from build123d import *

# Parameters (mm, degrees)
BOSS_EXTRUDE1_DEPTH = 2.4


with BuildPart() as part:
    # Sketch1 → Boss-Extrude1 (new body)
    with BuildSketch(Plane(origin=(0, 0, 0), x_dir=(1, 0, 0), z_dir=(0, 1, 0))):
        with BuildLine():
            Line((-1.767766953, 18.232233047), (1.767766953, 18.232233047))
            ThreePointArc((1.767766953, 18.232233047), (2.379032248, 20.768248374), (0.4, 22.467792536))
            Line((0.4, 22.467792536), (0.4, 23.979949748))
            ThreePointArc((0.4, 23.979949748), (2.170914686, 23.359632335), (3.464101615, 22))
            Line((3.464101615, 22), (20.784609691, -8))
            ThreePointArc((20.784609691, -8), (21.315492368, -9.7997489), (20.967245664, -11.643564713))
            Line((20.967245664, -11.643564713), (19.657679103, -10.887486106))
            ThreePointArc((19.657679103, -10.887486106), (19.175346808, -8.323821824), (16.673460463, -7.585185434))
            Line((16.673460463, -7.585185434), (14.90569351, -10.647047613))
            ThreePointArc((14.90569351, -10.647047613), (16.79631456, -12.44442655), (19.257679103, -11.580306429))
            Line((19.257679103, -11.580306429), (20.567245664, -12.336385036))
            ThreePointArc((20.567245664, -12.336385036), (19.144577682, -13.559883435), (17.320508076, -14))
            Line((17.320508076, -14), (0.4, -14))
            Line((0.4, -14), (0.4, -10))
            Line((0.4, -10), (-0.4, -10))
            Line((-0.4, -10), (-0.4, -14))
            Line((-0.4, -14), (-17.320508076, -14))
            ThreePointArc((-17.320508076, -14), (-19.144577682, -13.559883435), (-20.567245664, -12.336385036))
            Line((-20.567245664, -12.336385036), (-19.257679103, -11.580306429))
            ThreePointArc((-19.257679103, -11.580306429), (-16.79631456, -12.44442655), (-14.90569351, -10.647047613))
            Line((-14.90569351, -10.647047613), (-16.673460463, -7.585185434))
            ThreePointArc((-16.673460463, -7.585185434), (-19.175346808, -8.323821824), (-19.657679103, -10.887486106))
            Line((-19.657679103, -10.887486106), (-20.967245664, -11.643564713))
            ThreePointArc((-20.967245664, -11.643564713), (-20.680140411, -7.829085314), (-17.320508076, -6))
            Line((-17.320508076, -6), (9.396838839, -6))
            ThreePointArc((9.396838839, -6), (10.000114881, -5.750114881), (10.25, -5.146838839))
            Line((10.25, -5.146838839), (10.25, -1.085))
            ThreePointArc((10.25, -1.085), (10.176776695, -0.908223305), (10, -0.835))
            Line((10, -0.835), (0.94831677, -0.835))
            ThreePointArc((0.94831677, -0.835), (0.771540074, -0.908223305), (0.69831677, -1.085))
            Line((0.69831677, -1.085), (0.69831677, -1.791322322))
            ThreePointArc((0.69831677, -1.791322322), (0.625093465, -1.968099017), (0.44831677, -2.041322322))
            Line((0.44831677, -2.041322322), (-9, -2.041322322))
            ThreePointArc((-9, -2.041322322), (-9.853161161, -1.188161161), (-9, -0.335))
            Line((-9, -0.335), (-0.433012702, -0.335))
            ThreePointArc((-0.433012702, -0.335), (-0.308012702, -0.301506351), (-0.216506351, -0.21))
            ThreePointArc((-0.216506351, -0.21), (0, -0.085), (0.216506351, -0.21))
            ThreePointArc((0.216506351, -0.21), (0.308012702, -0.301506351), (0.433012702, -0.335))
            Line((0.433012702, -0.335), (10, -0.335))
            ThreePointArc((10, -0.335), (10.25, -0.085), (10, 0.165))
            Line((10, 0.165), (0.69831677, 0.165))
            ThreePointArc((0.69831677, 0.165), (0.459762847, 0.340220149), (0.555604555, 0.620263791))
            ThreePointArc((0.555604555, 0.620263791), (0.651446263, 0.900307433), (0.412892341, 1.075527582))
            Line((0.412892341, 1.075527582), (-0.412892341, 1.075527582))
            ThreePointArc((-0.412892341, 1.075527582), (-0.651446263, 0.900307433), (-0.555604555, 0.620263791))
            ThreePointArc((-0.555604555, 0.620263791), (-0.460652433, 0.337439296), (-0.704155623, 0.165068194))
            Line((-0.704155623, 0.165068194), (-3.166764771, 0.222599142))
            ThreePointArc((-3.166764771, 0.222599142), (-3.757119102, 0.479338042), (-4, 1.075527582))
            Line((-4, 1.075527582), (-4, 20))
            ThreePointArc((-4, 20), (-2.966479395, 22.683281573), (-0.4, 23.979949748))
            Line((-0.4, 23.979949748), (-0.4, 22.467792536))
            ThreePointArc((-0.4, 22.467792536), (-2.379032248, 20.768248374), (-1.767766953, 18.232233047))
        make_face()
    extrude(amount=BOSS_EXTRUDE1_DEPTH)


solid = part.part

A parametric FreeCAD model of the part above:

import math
import FreeCAD as App
import Part
import Sketcher
Q = App.Units.Quantity

doc = App.newDocument("Part")
body = doc.addObject("PartDesign::Body", "Body")

sketch1 = body.newObject("Sketcher::SketchObject", "Sketch")
sketch1.AttachmentSupport = (doc.getObject("XZ_Plane"), [""])
sketch1.MapMode = "FlatFace"
sketch1.addGeometry(Part.LineSegment(App.Vector(1.767767, -18.232233, 0), App.Vector(-1.767767, -18.232233, 0)), False)
sketch1.addGeometry(Part.ArcOfCircle(Part.Circle(App.Vector(0, -20, 0), App.Vector(0, 0, 1), 2.5), math.radians(135), math.radians(260.793104)), False)
sketch1.addGeometry(Part.LineSegment(App.Vector(-0.4, -22.467793, 0), App.Vector(-0.4, -23.97995, 0)), False)
sketch1.addGeometry(Part.ArcOfCircle(Part.Circle(App.Vector(0, -20, 0), App.Vector(0, 0, 1), 4), math.radians(180), math.radians(264.26083)), False)
sketch1.addGeometry(Part.LineSegment(App.Vector(-4, -20, 0), App.Vector(-4, -1.075528, 0)), False)
sketch1.addGeometry(Part.ArcOfCircle(Part.Circle(App.Vector(-3.146839, -1.075528, 0), App.Vector(0, 0, 1), 0.853161), math.radians(91.338288), math.radians(180)), False)
sketch1.addGeometry(Part.LineSegment(App.Vector(-3.166765, -0.222599, 0), App.Vector(-0.704156, -0.165068, 0)), False)
sketch1.addGeometry(Part.ArcOfCircle(Part.Circle(App.Vector(-0.698317, -0.415, 0), App.Vector(0, 0, 1), 0.25), math.radians(-55.190559), math.radians(91.338288)), False)
sketch1.addGeometry(Part.ArcOfCircle(Part.Circle(App.Vector(-0.412892, -0.825528, 0), App.Vector(0, 0, 1), 0.25), math.radians(124.80944), math.radians(270)), False)
sketch1.addGeometry(Part.LineSegment(App.Vector(-0.412892, -1.075528, 0), App.Vector(0.412892, -1.075528, 0)), False)
sketch1.addGeometry(Part.ArcOfCircle(Part.Circle(App.Vector(0.412892, -0.825528, 0), App.Vector(0, 0, 1), 0.25), math.radians(-90), math.radians(55.19056)), False)
sketch1.addGeometry(Part.ArcOfCircle(Part.Circle(App.Vector(0.698317, -0.415, 0), App.Vector(0, 0, 1), 0.25), math.radians(90), math.radians(235.19056)), False)
sketch1.addGeometry(Part.LineSegment(App.Vector(0.698317, -0.165, 0), App.Vector(10, -0.165, 0)), False)
sketch1.addGeometry(Part.ArcOfCircle(Part.Circle(App.Vector(10, 0.085, 0), App.Vector(0, 0, 1), 0.25), math.radians(-90), math.radians(90)), False)
sketch1.addGeometry(Part.LineSegment(App.Vector(10, 0.335, 0), App.Vector(0.433013, 0.335, 0)), False)
sketch1.addGeometry(Part.ArcOfCircle(Part.Circle(App.Vector(0.433013, 0.085, 0), App.Vector(0, 0, 1), 0.25), math.radians(90), math.radians(150)), False)
sketch1.addGeometry(Part.ArcOfCircle(Part.Circle(App.Vector(0, 0.335, 0), App.Vector(0, 0, 1), 0.25), math.radians(-150), math.radians(-30)), False)
sketch1.addGeometry(Part.ArcOfCircle(Part.Circle(App.Vector(-0.433013, 0.085, 0), App.Vector(0, 0, 1), 0.25), math.radians(30), math.radians(90)), False)
sketch1.addGeometry(Part.LineSegment(App.Vector(-0.433013, 0.335, 0), App.Vector(-9, 0.335, 0)), False)
sketch1.addGeometry(Part.ArcOfCircle(Part.Circle(App.Vector(-9, 1.188161, 0), App.Vector(0, 0, 1), 0.853161), math.radians(90), math.radians(270)), False)
sketch1.addGeometry(Part.LineSegment(App.Vector(-9, 2.041322, 0), App.Vector(0.448317, 2.041322, 0)), False)
sketch1.addGeometry(Part.ArcOfCircle(Part.Circle(App.Vector(0.448317, 1.791322, 0), App.Vector(0, 0, 1), 0.25), math.radians(0), math.radians(90)), False)
sketch1.addGeometry(Part.LineSegment(App.Vector(0.698317, 1.791322, 0), App.Vector(0.698317, 1.085, 0)), False)
sketch1.addGeometry(Part.ArcOfCircle(Part.Circle(App.Vector(0.948317, 1.085, 0), App.Vector(0, 0, 1), 0.25), math.radians(180), math.radians(270)), False)
sketch1.addGeometry(Part.LineSegment(App.Vector(0.948317, 0.835, 0), App.Vector(10, 0.835, 0)), False)
sketch1.addGeometry(Part.ArcOfCircle(Part.Circle(App.Vector(10, 1.085, 0), App.Vector(0, 0, 1), 0.25), math.radians(-90), math.radians(0)), False)
sketch1.addGeometry(Part.LineSegment(App.Vector(10.25, 1.085, 0), App.Vector(10.25, 5.146839, 0)), False)
sketch1.addGeometry(Part.ArcOfCircle(Part.Circle(App.Vector(9.396839, 5.146839, 0), App.Vector(0, 0, 1), 0.853161), math.radians(0), math.radians(90)), False)
sketch1.addGeometry(Part.LineSegment(App.Vector(9.396839, 6, 0), App.Vector(-17.320508, 6, 0)), False)
sketch1.addGeometry(Part.ArcOfCircle(Part.Circle(App.Vector(-17.320508, 10, 0), App.Vector(0, 0, 1), 4), math.radians(155.73917), math.radians(270)), False)
sketch1.addGeometry(Part.LineSegment(App.Vector(-20.967246, 11.643565, 0), App.Vector(-19.657679, 10.887486, 0)), False)
sketch1.addGeometry(Part.ArcOfCircle(Part.Circle(App.Vector(-17.320508, 10, 0), App.Vector(0, 0, 1), 2.5), math.radians(159.206896), math.radians(285)), False)
sketch1.addGeometry(Part.LineSegment(App.Vector(-16.67346, 7.585185, 0), App.Vector(-14.905694, 10.647048, 0)), False)
sketch1.addGeometry(Part.ArcOfCircle(Part.Circle(App.Vector(-17.320508, 10, 0), App.Vector(0, 0, 1), 2.5), math.radians(15), math.radians(140.793104)), False)
sketch1.addGeometry(Part.LineSegment(App.Vector(-19.257679, 11.580306, 0), App.Vector(-20.567246, 12.336385, 0)), False)
sketch1.addGeometry(Part.ArcOfCircle(Part.Circle(App.Vector(-17.320508, 10, 0), App.Vector(0, 0, 1), 4), math.radians(90), math.radians(144.260829)), False)
sketch1.addGeometry(Part.LineSegment(App.Vector(-17.320508, 14, 0), App.Vector(-0.4, 14, 0)), False)
sketch1.addGeometry(Part.LineSegment(App.Vector(-0.4, 14, 0), App.Vector(-0.4, 10, 0)), False)
sketch1.addGeometry(Part.LineSegment(App.Vector(-0.4, 10, 0), App.Vector(0.4, 10, 0)), False)
sketch1.addGeometry(Part.LineSegment(App.Vector(0.4, 10, 0), App.Vector(0.4, 14, 0)), False)
sketch1.addGeometry(Part.LineSegment(App.Vector(0.4, 14, 0), App.Vector(17.320508, 14, 0)), False)
sketch1.addGeometry(Part.ArcOfCircle(Part.Circle(App.Vector(17.320508, 10, 0), App.Vector(0, 0, 1), 4), math.radians(35.739171), math.radians(90)), False)
sketch1.addGeometry(Part.LineSegment(App.Vector(20.567246, 12.336385, 0), App.Vector(19.257679, 11.580306, 0)), False)
sketch1.addGeometry(Part.ArcOfCircle(Part.Circle(App.Vector(17.320508, 10, 0), App.Vector(0, 0, 1), 2.5), math.radians(39.206896), math.radians(165)), False)
sketch1.addGeometry(Part.LineSegment(App.Vector(14.905694, 10.647048, 0), App.Vector(16.67346, 7.585185, 0)), False)
sketch1.addGeometry(Part.ArcOfCircle(Part.Circle(App.Vector(17.320508, 10, 0), App.Vector(0, 0, 1), 2.5), math.radians(-105), math.radians(20.793104)), False)
sketch1.addGeometry(Part.LineSegment(App.Vector(19.657679, 10.887486, 0), App.Vector(20.967246, 11.643565, 0)), False)
sketch1.addGeometry(Part.ArcOfCircle(Part.Circle(App.Vector(17.320508, 10, 0), App.Vector(0, 0, 1), 4), math.radians(-30), math.radians(24.260829)), False)
sketch1.addGeometry(Part.LineSegment(App.Vector(20.78461, 8, 0), App.Vector(3.464102, -22, 0)), False)
sketch1.addGeometry(Part.ArcOfCircle(Part.Circle(App.Vector(0, -20, 0), App.Vector(0, 0, 1), 4), math.radians(-84.26083), math.radians(-30)), False)
sketch1.addGeometry(Part.LineSegment(App.Vector(0.4, -23.97995, 0), App.Vector(0.4, -22.467793, 0)), False)
sketch1.addGeometry(Part.ArcOfCircle(Part.Circle(App.Vector(0, -20, 0), App.Vector(0, 0, 1), 2.5), math.radians(-80.793104), math.radians(45)), False)
sketch1.addConstraint(Sketcher.Constraint("Coincident", 0, 2, 1, 1))
sketch1.addConstraint(Sketcher.Constraint("Coincident", 1, 2, 2, 1))
sketch1.addConstraint(Sketcher.Constraint("Coincident", 2, 2, 3, 2))
sketch1.addConstraint(Sketcher.Constraint("Tangent", 3, 1, 4, 1))
sketch1.addConstraint(Sketcher.Constraint("Tangent", 4, 2, 5, 2))
sketch1.addConstraint(Sketcher.Constraint("Tangent", 5, 1, 6, 1))
sketch1.addConstraint(Sketcher.Constraint("Tangent", 6, 2, 7, 2))
sketch1.addConstraint(Sketcher.Constraint("Tangent", 7, 1, 8, 1))
sketch1.addConstraint(Sketcher.Constraint("Tangent", 8, 2, 9, 1))
sketch1.addConstraint(Sketcher.Constraint("Tangent", 9, 2, 10, 1))
sketch1.addConstraint(Sketcher.Constraint("Tangent", 10, 2, 11, 2))
sketch1.addConstraint(Sketcher.Constraint("Tangent", 11, 1, 12, 1))
sketch1.addConstraint(Sketcher.Constraint("Tangent", 12, 2, 13, 1))
sketch1.addConstraint(Sketcher.Constraint("Tangent", 13, 2, 14, 1))
sketch1.addConstraint(Sketcher.Constraint("Tangent", 14, 2, 15, 1))
sketch1.addConstraint(Sketcher.Constraint("Tangent", 15, 2, 16, 2))
sketch1.addConstraint(Sketcher.Constraint("Tangent", 16, 1, 17, 1))
sketch1.addConstraint(Sketcher.Constraint("Tangent", 17, 2, 18, 1))
sketch1.addConstraint(Sketcher.Constraint("Tangent", 18, 2, 19, 2))
sketch1.addConstraint(Sketcher.Constraint("Tangent", 19, 1, 20, 1))
sketch1.addConstraint(Sketcher.Constraint("Tangent", 20, 2, 21, 2))
sketch1.addConstraint(Sketcher.Constraint("Tangent", 21, 1, 22, 1))
sketch1.addConstraint(Sketcher.Constraint("Tangent", 22, 2, 23, 1))
sketch1.addConstraint(Sketcher.Constraint("Tangent", 23, 2, 24, 1))
sketch1.addConstraint(Sketcher.Constraint("Tangent", 24, 2, 25, 1))
sketch1.addConstraint(Sketcher.Constraint("Tangent", 25, 2, 26, 1))
sketch1.addConstraint(Sketcher.Constraint("Tangent", 26, 2, 27, 1))
sketch1.addConstraint(Sketcher.Constraint("Tangent", 27, 2, 28, 1))
sketch1.addConstraint(Sketcher.Constraint("Tangent", 28, 2, 29, 2))
sketch1.addConstraint(Sketcher.Constraint("Coincident", 29, 1, 30, 1))
sketch1.addConstraint(Sketcher.Constraint("Coincident", 30, 2, 31, 1))
sketch1.addConstraint(Sketcher.Constraint("Coincident", 31, 2, 32, 1))
sketch1.addConstraint(Sketcher.Constraint("Coincident", 32, 2, 33, 1))
sketch1.addConstraint(Sketcher.Constraint("Coincident", 33, 2, 34, 1))
sketch1.addConstraint(Sketcher.Constraint("Coincident", 34, 2, 35, 2))
sketch1.addConstraint(Sketcher.Constraint("Tangent", 35, 1, 36, 1))
sketch1.addConstraint(Sketcher.Constraint("Coincident", 36, 2, 37, 1))
sketch1.addConstraint(Sketcher.Constraint("Coincident", 37, 2, 38, 1))
sketch1.addConstraint(Sketcher.Constraint("Coincident", 38, 2, 39, 1))
sketch1.addConstraint(Sketcher.Constraint("Coincident", 39, 2, 40, 1))
sketch1.addConstraint(Sketcher.Constraint("Tangent", 40, 2, 41, 2))
sketch1.addConstraint(Sketcher.Constraint("Coincident", 41, 1, 42, 1))
sketch1.addConstraint(Sketcher.Constraint("Coincident", 42, 2, 43, 1))
sketch1.addConstraint(Sketcher.Constraint("Coincident", 43, 2, 44, 1))
sketch1.addConstraint(Sketcher.Constraint("Coincident", 44, 2, 45, 1))
sketch1.addConstraint(Sketcher.Constraint("Coincident", 45, 2, 46, 1))
sketch1.addConstraint(Sketcher.Constraint("Coincident", 46, 2, 47, 2))
sketch1.addConstraint(Sketcher.Constraint("Tangent", 47, 1, 48, 1))
sketch1.addConstraint(Sketcher.Constraint("Tangent", 48, 2, 49, 2))
sketch1.addConstraint(Sketcher.Constraint("Coincident", 49, 1, 50, 1))
sketch1.addConstraint(Sketcher.Constraint("Coincident", 50, 2, 51, 1))
sketch1.addConstraint(Sketcher.Constraint("Coincident", 51, 2, 0, 1))
sketch1.addConstraint(Sketcher.Constraint("Horizontal", 0))
sketch1.addConstraint(Sketcher.Constraint("Vertical", 2))
sketch1.addConstraint(Sketcher.Constraint("Vertical", 4))
sketch1.addConstraint(Sketcher.Constraint("Horizontal", 9))
sketch1.addConstraint(Sketcher.Constraint("Horizontal", 12))
sketch1.addConstraint(Sketcher.Constraint("Horizontal", 14))
sketch1.addConstraint(Sketcher.Constraint("Horizontal", 18))
sketch1.addConstraint(Sketcher.Constraint("Horizontal", 20))
sketch1.addConstraint(Sketcher.Constraint("Vertical", 22))
sketch1.addConstraint(Sketcher.Constraint("Horizontal", 24))
sketch1.addConstraint(Sketcher.Constraint("Vertical", 26))
sketch1.addConstraint(Sketcher.Constraint("Horizontal", 28))
sketch1.addConstraint(Sketcher.Constraint("Horizontal", 36))
sketch1.addConstraint(Sketcher.Constraint("Vertical", 37))
sketch1.addConstraint(Sketcher.Constraint("Horizontal", 38))
sketch1.addConstraint(Sketcher.Constraint("Vertical", 39))
sketch1.addConstraint(Sketcher.Constraint("Horizontal", 40))
sketch1.addConstraint(Sketcher.Constraint("Vertical", 50))
sketch1.addConstraint(Sketcher.Constraint("Coincident", 3, 3, 1, 3))
sketch1.addConstraint(Sketcher.Constraint("Coincident", 31, 3, 29, 3))
sketch1.addConstraint(Sketcher.Constraint("Coincident", 33, 3, 29, 3))
sketch1.addConstraint(Sketcher.Constraint("Coincident", 35, 3, 29, 3))
sketch1.addConstraint(Sketcher.Constraint("Coincident", 43, 3, 41, 3))
sketch1.addConstraint(Sketcher.Constraint("Coincident", 45, 3, 41, 3))
sketch1.addConstraint(Sketcher.Constraint("Coincident", 47, 3, 41, 3))
sketch1.addConstraint(Sketcher.Constraint("Coincident", 49, 3, 1, 3))
sketch1.addConstraint(Sketcher.Constraint("Coincident", 51, 3, 1, 3))
sketch1.addConstraint(Sketcher.Constraint("Equal", 7, 8))
sketch1.addConstraint(Sketcher.Constraint("Equal", 8, 10))
sketch1.addConstraint(Sketcher.Constraint("Equal", 10, 11))
sketch1.addConstraint(Sketcher.Constraint("Equal", 11, 13))
sketch1.addConstraint(Sketcher.Constraint("Equal", 13, 15))
sketch1.addConstraint(Sketcher.Constraint("Equal", 15, 16))
sketch1.addConstraint(Sketcher.Constraint("Equal", 16, 17))
sketch1.addConstraint(Sketcher.Constraint("Equal", 5, 19))
sketch1.addConstraint(Sketcher.Constraint("Equal", 17, 21))
sketch1.addConstraint(Sketcher.Constraint("Equal", 21, 23))
sketch1.addConstraint(Sketcher.Constraint("Equal", 23, 25))
sketch1.addConstraint(Sketcher.Constraint("Equal", 19, 27))
sketch1.addConstraint(Sketcher.Constraint("Equal", 3, 29))
sketch1.addConstraint(Sketcher.Constraint("Equal", 1, 31))
sketch1.addConstraint(Sketcher.Constraint("Equal", 31, 33))
sketch1.addConstraint(Sketcher.Constraint("Equal", 29, 35))
sketch1.addConstraint(Sketcher.Constraint("Equal", 35, 41))
sketch1.addConstraint(Sketcher.Constraint("Equal", 33, 43))
sketch1.addConstraint(Sketcher.Constraint("Equal", 43, 45))
sketch1.addConstraint(Sketcher.Constraint("Equal", 41, 47))
sketch1.addConstraint(Sketcher.Constraint("Equal", 47, 49))
sketch1.addConstraint(Sketcher.Constraint("Equal", 45, 51))
sketch1.addConstraint(Sketcher.Constraint("Symmetric", 7, 3, 11, 3, -2))
sketch1.addConstraint(Sketcher.Constraint("Symmetric", 15, 3, 17, 3, -2))
sketch1.addConstraint(Sketcher.Constraint("Symmetric", 29, 3, 41, 3, -2))
sketch1.addConstraint(Sketcher.Constraint("Symmetric", 2, 2, 49, 1, -2))
sketch1.addConstraint(Sketcher.Constraint("Perpendicular", 30, 32))
sketch1.addConstraint(Sketcher.Constraint("Perpendicular", 32, 34))
sketch1.addConstraint(Sketcher.Constraint("Perpendicular", 42, 44))
sketch1.addConstraint(Sketcher.Constraint("Perpendicular", 44, 46))
sketch1.addConstraint(Sketcher.Constraint("Perpendicular", 34, 48))
sketch1.addConstraint(Sketcher.Constraint("Horizontal", 4, 2, 8, 2))
sketch1.addConstraint(Sketcher.Constraint("Horizontal", 16, 3, 13, 2))
sketch1.addConstraint(Sketcher.Constraint("Horizontal", 47, 3, 37, 2))
sketch1.addConstraint(Sketcher.Constraint("Horizontal", 34, 2, 41, 1))
sketch1.addConstraint(Sketcher.Constraint("Horizontal", 33, 2, 42, 2))
sketch1.addConstraint(Sketcher.Constraint("Horizontal", 32, 2, 43, 2))
sketch1.addConstraint(Sketcher.Constraint("Horizontal", 30, 2, 45, 2))
sketch1.addConstraint(Sketcher.Constraint("Vertical", 13, 3, 25, 3))
sketch1.addConstraint(Sketcher.Constraint("Vertical", 11, 1, 21, 1))
sketch1.addConstraint(Sketcher.Constraint("Vertical", 2, 2, 36, 2))
sketch1.addConstraint(Sketcher.Constraint("Vertical", 39, 2, 49, 1))
sketch1.addConstraint(Sketcher.Constraint("Equal", 30, 34))
sketch1.addConstraint(Sketcher.Constraint("Radius", 3, 4.0))
sketch1.addConstraint(Sketcher.Constraint("Radius", 1, 2.5))
sketch1.addConstraint(Sketcher.Constraint("Angle", 30, Q("-30 deg")))
sketch1.addConstraint(Sketcher.Constraint("Radius", 7, 0.25))
sketch1.addConstraint(Sketcher.Constraint("DistanceX", 38, 1, 38, 2, 0.8))
sketch1.addConstraint(Sketcher.Constraint("DistanceY", 1, 3, -1, 1, 20.0))
sketch1.addConstraint(Sketcher.Constraint("DistanceX", -1, 1, 13, 3, 10.0))
sketch1.addConstraint(Sketcher.Constraint("DistanceX", 19, 3, -1, 1, 9.0))
sketch1.addConstraint(Sketcher.Constraint("DistanceY", -1, 1, 29, 3, 10.0))
sketch1.addConstraint(Sketcher.Constraint("DistanceY", -1, 1, 15, 2, 0.21))
sketch1.addConstraint(Sketcher.Constraint("Radius", 5, 0.853161))
sketch1.addConstraint(Sketcher.Constraint("DistanceY", -1, 1, 23, 3, 1.085))
sketch1.addConstraint(Sketcher.Constraint("DistanceY", 5, 1, -1, 1, 0.222599))
sketch1.addConstraint(Sketcher.Constraint("Distance", 6, 2.463281))
sketch1.addConstraint(Sketcher.Constraint("DistanceX", 0, 2, 0, 1, 3.535534))
sketch1.addConstraint(Sketcher.Constraint("DistanceX", 30, 2, -1, 1, 19.657679))
sketch1.addConstraint(Sketcher.Constraint("DistanceX", 31, 2, -1, 1, 16.67346))
pad1 = body.newObject("PartDesign::Pad", "Pad")
pad1.Profile = sketch1
pad1.Length = 2.4
pad1.Reversed = True

doc.recompute()
